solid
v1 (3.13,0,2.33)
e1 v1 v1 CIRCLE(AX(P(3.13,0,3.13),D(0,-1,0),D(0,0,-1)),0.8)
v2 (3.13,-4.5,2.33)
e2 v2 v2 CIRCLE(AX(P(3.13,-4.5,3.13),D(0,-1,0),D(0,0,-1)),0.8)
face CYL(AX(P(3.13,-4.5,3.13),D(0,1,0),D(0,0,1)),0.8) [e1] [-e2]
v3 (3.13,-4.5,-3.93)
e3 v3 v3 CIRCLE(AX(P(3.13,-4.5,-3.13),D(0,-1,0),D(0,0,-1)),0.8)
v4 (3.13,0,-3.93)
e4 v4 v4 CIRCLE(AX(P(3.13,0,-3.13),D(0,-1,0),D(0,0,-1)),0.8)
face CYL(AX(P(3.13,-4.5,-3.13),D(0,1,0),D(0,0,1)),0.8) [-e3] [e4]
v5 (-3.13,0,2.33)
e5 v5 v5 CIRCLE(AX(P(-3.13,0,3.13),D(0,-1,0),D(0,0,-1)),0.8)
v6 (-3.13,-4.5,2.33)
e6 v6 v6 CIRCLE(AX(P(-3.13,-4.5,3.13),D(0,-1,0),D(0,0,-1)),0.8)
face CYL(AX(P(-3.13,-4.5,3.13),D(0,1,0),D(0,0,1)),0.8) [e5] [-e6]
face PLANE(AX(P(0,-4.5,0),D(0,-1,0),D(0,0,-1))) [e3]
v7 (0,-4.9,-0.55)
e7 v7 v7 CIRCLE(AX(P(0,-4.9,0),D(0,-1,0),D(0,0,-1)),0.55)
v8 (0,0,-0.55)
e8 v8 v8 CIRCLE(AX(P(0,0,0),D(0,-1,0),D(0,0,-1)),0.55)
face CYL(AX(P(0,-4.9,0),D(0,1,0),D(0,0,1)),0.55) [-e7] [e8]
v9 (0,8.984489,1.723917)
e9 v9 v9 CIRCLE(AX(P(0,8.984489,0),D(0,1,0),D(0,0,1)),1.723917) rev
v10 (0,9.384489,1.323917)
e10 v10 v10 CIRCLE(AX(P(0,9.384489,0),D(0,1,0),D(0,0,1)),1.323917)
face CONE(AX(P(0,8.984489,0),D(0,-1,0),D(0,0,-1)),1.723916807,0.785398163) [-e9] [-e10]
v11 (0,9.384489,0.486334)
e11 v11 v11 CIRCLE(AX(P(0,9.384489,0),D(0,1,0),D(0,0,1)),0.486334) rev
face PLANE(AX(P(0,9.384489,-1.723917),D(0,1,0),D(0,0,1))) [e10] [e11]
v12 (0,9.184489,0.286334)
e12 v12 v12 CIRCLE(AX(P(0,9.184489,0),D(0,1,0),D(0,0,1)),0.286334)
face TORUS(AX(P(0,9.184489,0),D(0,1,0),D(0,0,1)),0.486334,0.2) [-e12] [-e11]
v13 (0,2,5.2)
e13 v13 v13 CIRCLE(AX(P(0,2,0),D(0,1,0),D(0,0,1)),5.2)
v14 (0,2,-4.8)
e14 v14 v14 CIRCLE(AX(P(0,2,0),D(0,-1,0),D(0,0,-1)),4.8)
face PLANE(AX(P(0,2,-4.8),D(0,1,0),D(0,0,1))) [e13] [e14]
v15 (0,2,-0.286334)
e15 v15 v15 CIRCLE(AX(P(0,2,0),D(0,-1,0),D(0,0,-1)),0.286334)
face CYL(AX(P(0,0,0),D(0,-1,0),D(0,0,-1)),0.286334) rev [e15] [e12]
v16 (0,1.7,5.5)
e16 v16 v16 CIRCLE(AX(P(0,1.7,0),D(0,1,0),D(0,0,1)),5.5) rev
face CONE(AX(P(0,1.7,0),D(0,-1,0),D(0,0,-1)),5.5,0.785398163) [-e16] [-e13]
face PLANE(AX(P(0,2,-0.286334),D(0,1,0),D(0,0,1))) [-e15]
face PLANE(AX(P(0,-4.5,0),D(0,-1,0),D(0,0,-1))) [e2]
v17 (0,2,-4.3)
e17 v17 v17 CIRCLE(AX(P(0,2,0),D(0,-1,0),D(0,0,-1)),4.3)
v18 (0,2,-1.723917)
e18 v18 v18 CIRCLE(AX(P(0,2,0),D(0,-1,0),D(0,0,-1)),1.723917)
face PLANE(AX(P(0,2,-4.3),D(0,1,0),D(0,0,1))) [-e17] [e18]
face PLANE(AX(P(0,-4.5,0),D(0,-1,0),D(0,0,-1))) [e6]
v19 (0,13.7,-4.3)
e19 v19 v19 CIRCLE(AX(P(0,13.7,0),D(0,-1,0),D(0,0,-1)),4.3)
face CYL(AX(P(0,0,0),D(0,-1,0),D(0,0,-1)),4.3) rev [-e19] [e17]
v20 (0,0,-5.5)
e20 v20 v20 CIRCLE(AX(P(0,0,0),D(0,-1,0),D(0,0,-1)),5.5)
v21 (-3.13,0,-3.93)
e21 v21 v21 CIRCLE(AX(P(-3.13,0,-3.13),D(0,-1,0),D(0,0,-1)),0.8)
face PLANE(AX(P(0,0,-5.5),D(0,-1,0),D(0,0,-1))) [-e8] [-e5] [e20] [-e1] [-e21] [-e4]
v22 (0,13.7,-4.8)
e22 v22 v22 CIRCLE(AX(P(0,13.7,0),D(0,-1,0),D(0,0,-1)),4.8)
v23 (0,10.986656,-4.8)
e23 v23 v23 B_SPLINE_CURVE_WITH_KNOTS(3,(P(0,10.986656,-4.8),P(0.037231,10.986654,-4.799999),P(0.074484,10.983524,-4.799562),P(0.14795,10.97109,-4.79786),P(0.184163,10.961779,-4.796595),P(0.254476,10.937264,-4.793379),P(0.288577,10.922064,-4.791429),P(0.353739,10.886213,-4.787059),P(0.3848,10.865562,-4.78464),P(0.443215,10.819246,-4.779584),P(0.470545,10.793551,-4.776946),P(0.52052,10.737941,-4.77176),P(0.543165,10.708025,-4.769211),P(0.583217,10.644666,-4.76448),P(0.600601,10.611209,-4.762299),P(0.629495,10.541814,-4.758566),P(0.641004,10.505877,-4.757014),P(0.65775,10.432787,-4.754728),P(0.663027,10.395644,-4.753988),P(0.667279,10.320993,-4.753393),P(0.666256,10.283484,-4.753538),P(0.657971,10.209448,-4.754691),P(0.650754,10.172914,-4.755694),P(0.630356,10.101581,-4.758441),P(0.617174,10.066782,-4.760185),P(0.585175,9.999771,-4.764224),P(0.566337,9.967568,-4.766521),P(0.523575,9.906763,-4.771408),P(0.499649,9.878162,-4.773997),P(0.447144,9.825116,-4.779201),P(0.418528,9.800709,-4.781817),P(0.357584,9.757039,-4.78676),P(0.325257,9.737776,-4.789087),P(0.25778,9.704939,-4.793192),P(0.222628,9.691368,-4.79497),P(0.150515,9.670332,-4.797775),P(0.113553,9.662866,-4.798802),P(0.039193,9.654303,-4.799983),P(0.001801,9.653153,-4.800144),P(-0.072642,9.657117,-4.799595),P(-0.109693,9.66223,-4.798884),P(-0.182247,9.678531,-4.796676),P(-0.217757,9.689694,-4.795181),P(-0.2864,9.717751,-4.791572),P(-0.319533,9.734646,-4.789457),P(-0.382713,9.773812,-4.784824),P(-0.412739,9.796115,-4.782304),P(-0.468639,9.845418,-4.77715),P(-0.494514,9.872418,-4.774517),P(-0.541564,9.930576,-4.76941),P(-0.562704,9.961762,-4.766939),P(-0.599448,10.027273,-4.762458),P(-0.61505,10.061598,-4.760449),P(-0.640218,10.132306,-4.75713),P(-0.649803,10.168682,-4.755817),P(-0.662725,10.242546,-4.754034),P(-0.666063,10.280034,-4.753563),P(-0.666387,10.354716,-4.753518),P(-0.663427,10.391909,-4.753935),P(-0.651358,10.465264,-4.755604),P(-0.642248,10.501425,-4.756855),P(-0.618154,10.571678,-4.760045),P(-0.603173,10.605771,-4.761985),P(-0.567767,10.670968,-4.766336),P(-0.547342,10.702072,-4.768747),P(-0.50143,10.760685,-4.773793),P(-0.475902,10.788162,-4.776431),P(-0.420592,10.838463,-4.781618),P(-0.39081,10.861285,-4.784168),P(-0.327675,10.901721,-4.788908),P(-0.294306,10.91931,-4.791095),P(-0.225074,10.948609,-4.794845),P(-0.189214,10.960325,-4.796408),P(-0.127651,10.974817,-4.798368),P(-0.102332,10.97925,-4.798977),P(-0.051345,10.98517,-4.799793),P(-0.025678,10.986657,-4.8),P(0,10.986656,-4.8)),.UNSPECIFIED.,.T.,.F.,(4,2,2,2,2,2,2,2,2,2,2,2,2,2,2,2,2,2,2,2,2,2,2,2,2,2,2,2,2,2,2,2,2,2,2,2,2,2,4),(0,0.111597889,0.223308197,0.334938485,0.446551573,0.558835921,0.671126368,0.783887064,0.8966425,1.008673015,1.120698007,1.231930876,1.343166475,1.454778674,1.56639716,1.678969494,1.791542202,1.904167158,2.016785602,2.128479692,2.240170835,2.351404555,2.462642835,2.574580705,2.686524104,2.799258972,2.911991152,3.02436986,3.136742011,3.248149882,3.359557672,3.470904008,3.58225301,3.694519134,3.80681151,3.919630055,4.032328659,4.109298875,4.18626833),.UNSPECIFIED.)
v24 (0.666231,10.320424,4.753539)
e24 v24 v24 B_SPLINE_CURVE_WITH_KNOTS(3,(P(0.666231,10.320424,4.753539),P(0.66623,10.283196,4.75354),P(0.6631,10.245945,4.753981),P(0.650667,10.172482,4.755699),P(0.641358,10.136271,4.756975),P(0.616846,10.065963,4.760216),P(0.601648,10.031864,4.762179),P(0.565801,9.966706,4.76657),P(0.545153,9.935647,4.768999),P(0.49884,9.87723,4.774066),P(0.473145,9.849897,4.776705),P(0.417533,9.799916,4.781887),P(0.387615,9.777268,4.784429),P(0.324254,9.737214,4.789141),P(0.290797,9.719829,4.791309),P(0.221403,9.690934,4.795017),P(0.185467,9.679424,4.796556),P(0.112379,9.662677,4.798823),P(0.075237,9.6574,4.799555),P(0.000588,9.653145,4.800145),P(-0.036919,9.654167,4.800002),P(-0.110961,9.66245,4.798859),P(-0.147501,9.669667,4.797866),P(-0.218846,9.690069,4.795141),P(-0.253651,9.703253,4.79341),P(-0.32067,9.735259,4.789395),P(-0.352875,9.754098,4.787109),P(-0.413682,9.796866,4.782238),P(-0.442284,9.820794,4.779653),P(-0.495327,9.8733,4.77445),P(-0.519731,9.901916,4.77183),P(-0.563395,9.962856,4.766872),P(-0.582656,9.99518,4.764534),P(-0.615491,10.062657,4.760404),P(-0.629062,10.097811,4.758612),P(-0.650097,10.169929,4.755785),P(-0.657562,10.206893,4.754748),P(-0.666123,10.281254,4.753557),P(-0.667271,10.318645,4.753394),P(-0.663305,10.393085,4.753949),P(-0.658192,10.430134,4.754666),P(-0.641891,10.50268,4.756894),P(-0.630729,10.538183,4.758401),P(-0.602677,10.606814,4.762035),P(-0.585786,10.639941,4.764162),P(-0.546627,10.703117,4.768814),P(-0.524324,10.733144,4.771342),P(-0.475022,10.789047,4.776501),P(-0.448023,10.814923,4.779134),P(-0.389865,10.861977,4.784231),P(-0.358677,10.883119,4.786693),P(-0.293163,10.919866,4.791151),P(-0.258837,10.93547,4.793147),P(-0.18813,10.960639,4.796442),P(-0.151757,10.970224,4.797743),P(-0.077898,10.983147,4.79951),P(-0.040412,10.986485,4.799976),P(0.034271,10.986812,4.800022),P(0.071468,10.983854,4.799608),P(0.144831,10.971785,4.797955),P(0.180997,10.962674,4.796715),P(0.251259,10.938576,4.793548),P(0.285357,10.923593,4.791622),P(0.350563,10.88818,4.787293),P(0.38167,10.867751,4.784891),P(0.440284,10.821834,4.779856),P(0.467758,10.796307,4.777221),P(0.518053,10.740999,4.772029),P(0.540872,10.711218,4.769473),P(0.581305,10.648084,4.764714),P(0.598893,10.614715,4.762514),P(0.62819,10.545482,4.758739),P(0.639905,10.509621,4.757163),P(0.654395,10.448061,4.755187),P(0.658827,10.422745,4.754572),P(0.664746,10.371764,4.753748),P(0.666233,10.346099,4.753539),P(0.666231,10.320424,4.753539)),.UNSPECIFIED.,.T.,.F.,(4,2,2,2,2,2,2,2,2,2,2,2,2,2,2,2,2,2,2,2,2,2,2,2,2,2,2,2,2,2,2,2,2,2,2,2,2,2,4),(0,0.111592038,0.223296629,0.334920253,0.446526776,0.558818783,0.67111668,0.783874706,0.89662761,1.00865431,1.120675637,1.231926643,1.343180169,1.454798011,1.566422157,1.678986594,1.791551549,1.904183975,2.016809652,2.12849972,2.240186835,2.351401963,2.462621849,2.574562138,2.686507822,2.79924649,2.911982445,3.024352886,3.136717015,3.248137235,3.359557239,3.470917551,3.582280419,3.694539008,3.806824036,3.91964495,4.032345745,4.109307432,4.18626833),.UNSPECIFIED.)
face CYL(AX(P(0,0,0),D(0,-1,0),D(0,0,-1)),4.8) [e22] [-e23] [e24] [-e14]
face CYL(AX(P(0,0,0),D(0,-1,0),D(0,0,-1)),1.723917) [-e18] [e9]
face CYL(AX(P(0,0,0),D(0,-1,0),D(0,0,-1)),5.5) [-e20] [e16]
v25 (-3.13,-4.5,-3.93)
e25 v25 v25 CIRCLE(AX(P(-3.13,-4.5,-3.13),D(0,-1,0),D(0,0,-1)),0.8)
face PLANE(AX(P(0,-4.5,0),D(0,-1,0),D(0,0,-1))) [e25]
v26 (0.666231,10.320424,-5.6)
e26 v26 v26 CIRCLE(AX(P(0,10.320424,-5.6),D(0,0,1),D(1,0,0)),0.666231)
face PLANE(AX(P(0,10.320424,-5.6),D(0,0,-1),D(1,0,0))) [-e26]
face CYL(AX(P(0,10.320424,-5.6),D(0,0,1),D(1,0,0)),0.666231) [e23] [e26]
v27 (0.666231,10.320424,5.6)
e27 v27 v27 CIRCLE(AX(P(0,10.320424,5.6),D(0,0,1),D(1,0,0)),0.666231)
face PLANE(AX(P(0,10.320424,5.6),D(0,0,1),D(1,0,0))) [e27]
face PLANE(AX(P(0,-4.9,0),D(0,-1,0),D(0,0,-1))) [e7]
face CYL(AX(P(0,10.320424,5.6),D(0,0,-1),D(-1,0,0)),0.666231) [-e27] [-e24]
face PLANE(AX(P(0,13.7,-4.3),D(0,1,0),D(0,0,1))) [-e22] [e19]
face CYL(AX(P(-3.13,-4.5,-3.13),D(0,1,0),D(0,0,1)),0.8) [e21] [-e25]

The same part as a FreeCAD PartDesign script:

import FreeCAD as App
import Part
import Sketcher
Q = App.Units.Quantity


def edges_at(feature, points):
    """Names of the edges that pass closest to the given points."""
    edges = feature.Shape.Edges
    near = lambda p: min(range(len(edges)), key=lambda i: edges[i].distToShape(Part.Vertex(*p))[0])
    return sorted({f"Edge{near(p) + 1}" for p in points})

doc = App.newDocument("Part")
body = doc.addObject("PartDesign::Body", "Body")

sketch1 = doc.addObject("Sketcher::SketchObject", "Sketch")
body.addObject(sketch1)
sketch1.AttachmentSupport = (doc.YZ_Plane, [""])
sketch1.MapMode = "FlatFace"
sketch1.addGeometry([
    Part.LineSegment(App.Vector(2, 0, 0), App.Vector(0, 0, 0)),
    Part.LineSegment(App.Vector(0, 0, 0), App.Vector(0, -5.5, 0)),
    Part.LineSegment(App.Vector(0, -5.5, 0), App.Vector(2, -5.5, 0)),
    Part.LineSegment(App.Vector(2, -5.5, 0), App.Vector(2, -4.8, 0)),
    Part.LineSegment(App.Vector(2, -4.8, 0), App.Vector(13.7, -4.8, 0)),
    Part.LineSegment(App.Vector(13.7, -4.8, 0), App.Vector(13.7, -4.3, 0)),
    Part.LineSegment(App.Vector(13.7, -4.3, 0), App.Vector(2, -4.3, 0)),
    Part.LineSegment(App.Vector(2, -4.3, 0), App.Vector(2, -1.72, 0)),
    Part.LineSegment(App.Vector(2, -1.72, 0), App.Vector(9.38, -1.72, 0)),
    Part.LineSegment(App.Vector(9.38, -1.72, 0), App.Vector(9.38, -0.29, 0)),
    Part.LineSegment(App.Vector(9.38, -0.29, 0), App.Vector(2, -0.29, 0)),
    Part.LineSegment(App.Vector(2, -0.29, 0), App.Vector(2, 0, 0)),
], False)
sketch1.addConstraint([
    Sketcher.Constraint("Coincident", 0, 2, 1, 1),
    Sketcher.Constraint("Coincident", 1, 2, 2, 1),
    Sketcher.Constraint("Coincident", 2, 2, 3, 1),
    Sketcher.Constraint("Coincident", 3, 2, 4, 1),
    Sketcher.Constraint("Coincident", 4, 2, 5, 1),
    Sketcher.Constraint("Coincident", 5, 2, 6, 1),
    Sketcher.Constraint("Coincident", 6, 2, 7, 1),
    Sketcher.Constraint("Coincident", 7, 2, 8, 1),
    Sketcher.Constraint("Coincident", 8, 2, 9, 1),
    Sketcher.Constraint("Coincident", 9, 2, 10, 1),
    Sketcher.Constraint("Coincident", 10, 2, 11, 1),
    Sketcher.Constraint("Coincident", 11, 2, 0, 1),
    Sketcher.Constraint("Horizontal", 0),
    Sketcher.Constraint("Vertical", 1),
    Sketcher.Constraint("Horizontal", 2),
    Sketcher.Constraint("Vertical", 3),
    Sketcher.Constraint("Horizontal", 4),
    Sketcher.Constraint("Vertical", 5),
    Sketcher.Constraint("Horizontal", 6),
    Sketcher.Constraint("Vertical", 7),
    Sketcher.Constraint("Horizontal", 8),
    Sketcher.Constraint("Vertical", 9),
    Sketcher.Constraint("Horizontal", 10),
    Sketcher.Constraint("Vertical", 11),
    Sketcher.Constraint("Coincident", 0, 2, -1, 1),
    Sketcher.Constraint("Vertical", 3, 2, 6, 2),
    Sketcher.Constraint("Vertical", 7, 2, 10, 2),
    Sketcher.Constraint("DistanceX", 0, 2, 0, 1, Q("2 mm")),
    Sketcher.Constraint("DistanceX", 4, 1, 4, 2, Q("11.7 mm")),
    Sketcher.Constraint("DistanceY", 1, 2, 1, 1, Q("5.5 mm")),
    Sketcher.Constraint("DistanceY", 3, 1, 3, 2, Q("0.7 mm")),
    Sketcher.Constraint("DistanceY", 5, 1, 5, 2, Q("0.5 mm")),
    Sketcher.Constraint("DistanceX", 8, 1, 8, 2, Q("7.384489 mm")),
    Sketcher.Constraint("DistanceY", 7, 1, 7, 2, Q("2.576083 mm")),
    Sketcher.Constraint("DistanceY", 9, 1, 9, 2, Q("1.437582 mm")),
])
revolution = doc.addObject("PartDesign::Revolution", "Revolution")
body.addObject(revolution)
revolution.Profile = sketch1
revolution.ReferenceAxis = (sketch1, ["H_Axis"])
revolution.Angle = 360

sketch2 = doc.addObject("Sketcher::SketchObject", "Sketch001")
body.addObject(sketch2)
sketch2.AttachmentSupport = (doc.XY_Plane, [""])
sketch2.MapMode = "FlatFace"
sketch2.AttachmentOffset = App.Placement(App.Vector(0, 0, 4.753539), App.Rotation())
sketch2.addGeometry(Part.Circle(App.Vector(0, 10.3, 0), App.Vector(0, 0, 1), 0.7), False)
sketch2.addConstraint([
    Sketcher.Constraint("PointOnObject", 0, 3, -2),
    Sketcher.Constraint("Diameter", 0, Q("1.332463 mm")),
    Sketcher.Constraint("DistanceY", -1, 1, 0, 3, Q("10.320424 mm")),
])
pad1 = doc.addObject("PartDesign::Pad", "Pad")
body.addObject(pad1)
pad1.Profile = sketch2
pad1.Length = 0.846461
doc.recompute()

mirrored = doc.addObject("PartDesign::Mirrored", "Mirrored")
body.addObject(mirrored)
mirrored.Originals = [pad1]
mirrored.MirrorPlane = (doc.XY_Plane, [""])
body.Tip = mirrored
doc.recompute()

chamfer = doc.addObject("PartDesign::Chamfer", "Chamfer")
body.addObject(chamfer)
chamfer.Base = (mirrored, edges_at(mirrored, [(0, 2, 5.5)]))
chamfer.Size = 0.3
doc.recompute()

fillet = doc.addObject("PartDesign::Fillet", "Fillet")
body.addObject(fillet)
fillet.Base = (chamfer, edges_at(chamfer, [(0, 9.384, 0.286)]))
fillet.Radius = 0.2
doc.recompute()

chamfer2 = doc.addObject("PartDesign::Chamfer", "Chamfer001")
body.addObject(chamfer2)
chamfer2.Base = (fillet, edges_at(fillet, [(0, 9.384, 1.724)]))
chamfer2.Size = 0.4

sketch3 = doc.addObject("Sketcher::SketchObject", "Sketch002")
body.addObject(sketch3)
sketch3.AttachmentSupport = (doc.XZ_Plane, [""])
sketch3.MapMode = "FlatFace"
sketch3.addGeometry(Part.Circle(App.Vector(0, 0, 0), App.Vector(0, 0, 1), 0.6), False)
sketch3.addConstraint([
    Sketcher.Constraint("Coincident", 0, 3, -1, 1),
    Sketcher.Constraint("Diameter", 0, Q("1.1 mm")),
])
pad2 = doc.addObject("PartDesign::Pad", "Pad001")
body.addObject(pad2)
pad2.Profile = sketch3
pad2.Length = 4.9

sketch4 = doc.addObject("Sketcher::SketchObject", "Sketch003")
body.addObject(sketch4)
sketch4.AttachmentSupport = (doc.XZ_Plane, [""])
sketch4.MapMode = "FlatFace"
sketch4.addGeometry([
    Part.Circle(App.Vector(-3.1, 3.1, 0), App.Vector(0, 0, 1), 0.8),
    Part.Circle(App.Vector(3.1, 3.1, 0), App.Vector(0, 0, 1), 0.8),
    Part.Circle(App.Vector(-3.1, -3.1, 0), App.Vector(0, 0, 1), 0.8),
    Part.Circle(App.Vector(3.1, -3.1, 0), App.Vector(0, 0, 1), 0.8),
], False)
sketch4.addConstraint([
    Sketcher.Constraint("Equal", 0, 1),
    Sketcher.Constraint("Equal", 1, 2),
    Sketcher.Constraint("Equal", 2, 3),
    Sketcher.Constraint("Symmetric", 1, 3, 2, 3, -1, 1),
    Sketcher.Constraint("Symmetric", 0, 3, 3, 3, -1, 1),
    Sketcher.Constraint("Symmetric", 0, 3, 1, 3, -2),
    Sketcher.Constraint("Diameter", 0, Q("1.6 mm")),
    Sketcher.Constraint("DistanceX", 0, 3, -1, 1, Q("3.13 mm")),
    Sketcher.Constraint("DistanceY", -1, 1, 0, 3, Q("3.13 mm")),
])
pad3 = doc.addObject("PartDesign::Pad", "Pad002")
body.addObject(pad3)
pad3.Profile = sketch4
pad3.Length = 4.5

doc.recompute()
